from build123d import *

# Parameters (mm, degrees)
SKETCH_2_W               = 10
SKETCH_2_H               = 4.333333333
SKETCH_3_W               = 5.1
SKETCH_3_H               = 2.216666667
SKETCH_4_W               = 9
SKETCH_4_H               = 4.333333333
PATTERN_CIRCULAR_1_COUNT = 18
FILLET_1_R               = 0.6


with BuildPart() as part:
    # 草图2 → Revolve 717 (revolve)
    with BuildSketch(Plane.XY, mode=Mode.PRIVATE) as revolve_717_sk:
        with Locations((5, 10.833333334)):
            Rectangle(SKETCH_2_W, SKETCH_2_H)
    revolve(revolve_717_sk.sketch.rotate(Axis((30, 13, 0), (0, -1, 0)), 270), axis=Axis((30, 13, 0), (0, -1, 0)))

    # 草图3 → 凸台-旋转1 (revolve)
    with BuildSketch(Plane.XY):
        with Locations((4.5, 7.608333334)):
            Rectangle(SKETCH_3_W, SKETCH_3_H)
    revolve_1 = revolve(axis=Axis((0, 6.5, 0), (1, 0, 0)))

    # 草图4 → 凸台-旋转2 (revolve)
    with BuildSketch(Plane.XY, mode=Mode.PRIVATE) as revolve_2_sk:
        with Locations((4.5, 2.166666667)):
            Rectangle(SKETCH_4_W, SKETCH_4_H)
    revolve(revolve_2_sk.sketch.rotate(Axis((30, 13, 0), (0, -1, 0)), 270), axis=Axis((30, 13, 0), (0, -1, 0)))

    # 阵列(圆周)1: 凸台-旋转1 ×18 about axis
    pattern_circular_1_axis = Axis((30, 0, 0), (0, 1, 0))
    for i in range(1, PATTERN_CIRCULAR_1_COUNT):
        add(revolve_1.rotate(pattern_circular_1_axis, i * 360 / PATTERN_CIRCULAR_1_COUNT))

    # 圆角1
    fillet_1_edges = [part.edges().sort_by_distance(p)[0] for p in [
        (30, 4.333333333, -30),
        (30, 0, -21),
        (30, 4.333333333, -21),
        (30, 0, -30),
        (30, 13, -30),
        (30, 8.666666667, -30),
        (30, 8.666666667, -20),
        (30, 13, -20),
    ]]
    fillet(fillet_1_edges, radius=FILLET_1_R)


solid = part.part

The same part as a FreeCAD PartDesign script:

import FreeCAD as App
import Part
import Sketcher

V = App.Vector


def edges_at(feature, points):
    """Names of the edges that pass closest to the given points."""
    edges = feature.Shape.Edges
    near = lambda p: min(range(len(edges)), key=lambda i: edges[i].distToShape(Part.Vertex(*p))[0])
    return sorted({f"Edge{near(p) + 1}" for p in points})

doc = App.newDocument("Part")
body = doc.addObject("PartDesign::Body", "Body")

sketch1 = body.newObject("Sketcher::SketchObject", "Sketch")
sketch1.AttachmentSupport = (doc.getObject("XY_Plane"), [""])
sketch1.MapMode = "FlatFace"
sketch1.addGeometry([
    Part.LineSegment(V(0, 13, 0), V(0, 8.7, 0)),
    Part.LineSegment(V(0, 8.7, 0), V(10, 8.7, 0)),
    Part.LineSegment(V(10, 8.7, 0), V(10, 13, 0)),
    Part.LineSegment(V(10, 13, 0), V(0, 13, 0)),
], False)
sketch1.addGeometry(Part.LineSegment(V(30, 13, 0), V(30, 8.7, 0)), True)
sketch1.addConstraint([
    Sketcher.Constraint("Coincident", 0, 2, 1, 1),
    Sketcher.Constraint("Coincident", 1, 2, 2, 1),
    Sketcher.Constraint("Coincident", 2, 2, 3, 1),
    Sketcher.Constraint("Coincident", 3, 2, 0, 1),
    Sketcher.Constraint("Vertical", 0),
    Sketcher.Constraint("Horizontal", 1),
    Sketcher.Constraint("Vertical", 2),
    Sketcher.Constraint("Horizontal", 3),
    Sketcher.Constraint("Vertical", 4),
    Sketcher.Constraint("PointOnObject", 0, 2, -2),
    Sketcher.Constraint("Horizontal", 3, 2, 4, 1),
    Sketcher.Constraint("Horizontal", 1, 2, 4, 2),
    Sketcher.Constraint("DistanceX", 1, 1, 1, 2, 10.0),
    Sketcher.Constraint("DistanceY", -1, 1, 2, 2, 13.0),
    Sketcher.Constraint("DistanceX", -1, 1, 4, 1, 30.0),
    Sketcher.Constraint("DistanceY", 0, 2, 0, 1, 4.333333),
])
revolution = body.newObject("PartDesign::Revolution", "Revolution")
revolution.Profile = sketch1
revolution.ReferenceAxis = (sketch1, ["Axis0"])
revolution.Angle = 360

sketch2 = body.newObject("Sketcher::SketchObject", "Sketch001")
sketch2.AttachmentSupport = (doc.getObject("XY_Plane"), [""])
sketch2.MapMode = "FlatFace"
sketch2.addGeometry([
    Part.LineSegment(V(1.9, 8.7, 0), V(1.9, 6.5, 0)),
    Part.LineSegment(V(1.9, 6.5, 0), V(7, 6.5, 0)),
    Part.LineSegment(V(7, 6.5, 0), V(7, 8.7, 0)),
    Part.LineSegment(V(7, 8.7, 0), V(1.9, 8.7, 0)),
], False)
sketch2.addGeometry(Part.LineSegment(V(1.9, 6.5, 0), V(7, 6.5, 0)), True)
sketch2.addConstraint([
    Sketcher.Constraint("Coincident", 0, 2, 1, 1),
    Sketcher.Constraint("Coincident", 1, 2, 2, 1),
    Sketcher.Constraint("Coincident", 2, 2, 3, 1),
    Sketcher.Constraint("Coincident", 3, 2, 0, 1),
    Sketcher.Constraint("Vertical", 0),
    Sketcher.Constraint("Horizontal", 1),
    Sketcher.Constraint("Vertical", 2),
    Sketcher.Constraint("Horizontal", 3),
    Sketcher.Constraint("Horizontal", 4),
    Sketcher.Constraint("Coincident", 4, 1, 0, 2),
    Sketcher.Constraint("Vertical", 2, 2, 4, 2),
    Sketcher.Constraint("DistanceX", 1, 1, 1, 2, 5.1),
    Sketcher.Constraint("DistanceY", -1, 1, 0, 2, 6.5),
    Sketcher.Constraint("DistanceX", -1, 1, 0, 2, 1.95),
    Sketcher.Constraint("DistanceY", 0, 2, 0, 1, 2.216667),
])
revolution2 = body.newObject("PartDesign::Revolution", "Revolution001")
revolution2.Profile = sketch2
revolution2.ReferenceAxis = (sketch2, ["Axis0"])
revolution2.Angle = 360

sketch3 = body.newObject("Sketcher::SketchObject", "Sketch002")
sketch3.AttachmentSupport = (doc.getObject("XY_Plane"), [""])
sketch3.MapMode = "FlatFace"
sketch3.addGeometry([
    Part.LineSegment(V(0, 4.3, 0), V(0, 0, 0)),
    Part.LineSegment(V(0, 0, 0), V(9, 0, 0)),
    Part.LineSegment(V(9, 0, 0), V(9, 4.3, 0)),
    Part.LineSegment(V(9, 4.3, 0), V(0, 4.3, 0)),
], False)
sketch3.addGeometry(Part.LineSegment(V(30, 4.3, 0), V(30, 0, 0)), True)
sketch3.addConstraint([
    Sketcher.Constraint("Coincident", 0, 2, 1, 1),
    Sketcher.Constraint("Coincident", 1, 2, 2, 1),
    Sketcher.Constraint("Coincident", 2, 2, 3, 1),
    Sketcher.Constraint("Coincident", 3, 2, 0, 1),
    Sketcher.Constraint("Vertical", 0),
    Sketcher.Constraint("Horizontal", 1),
    Sketcher.Constraint("Vertical", 2),
    Sketcher.Constraint("Horizontal", 3),
    Sketcher.Constraint("Vertical", 4),
    Sketcher.Constraint("Coincident", 0, 2, -1, 1),
    Sketcher.Constraint("PointOnObject", 4, 2, -1),
    Sketcher.Constraint("Horizontal", 3, 2, 4, 1),
    Sketcher.Constraint("DistanceX", 1, 1, 1, 2, 9.0),
    Sketcher.Constraint("DistanceX", -1, 1, 4, 1, 30.0),
    Sketcher.Constraint("DistanceY", 0, 2, 0, 1, 4.333333),
])
revolution3 = body.newObject("PartDesign::Revolution", "Revolution002")
revolution3.Profile = sketch3
revolution3.ReferenceAxis = (sketch3, ["Axis0"])
revolution3.Angle = 360
doc.recompute()

datumline = body.newObject("PartDesign::Line", "DatumLine")
datumline.Placement = App.Placement(V(30, 0, 0), App.Rotation(V(0, 0, 1), V(0, 1, 0)))
polarpattern = body.newObject("PartDesign::PolarPattern", "PolarPattern")
polarpattern.Originals = [revolution2]
polarpattern.Axis = (datumline, [""])
polarpattern.Angle = 360
polarpattern.Occurrences = 18
body.Tip = polarpattern
doc.recompute()

fillet = body.newObject("PartDesign::Fillet", "Fillet")
fillet.Base = (polarpattern, edges_at(polarpattern, [
    (30, 4.333, -30),
    (30, 0, -21),
    (30, 4.333, -21),
    (30, 0, -30),
    (30, 13, -30),
    (30, 8.667, -30),
    (30, 8.667, -20),
    (30, 13, -20),
]))
fillet.Radius = 0.6

doc.recompute()
